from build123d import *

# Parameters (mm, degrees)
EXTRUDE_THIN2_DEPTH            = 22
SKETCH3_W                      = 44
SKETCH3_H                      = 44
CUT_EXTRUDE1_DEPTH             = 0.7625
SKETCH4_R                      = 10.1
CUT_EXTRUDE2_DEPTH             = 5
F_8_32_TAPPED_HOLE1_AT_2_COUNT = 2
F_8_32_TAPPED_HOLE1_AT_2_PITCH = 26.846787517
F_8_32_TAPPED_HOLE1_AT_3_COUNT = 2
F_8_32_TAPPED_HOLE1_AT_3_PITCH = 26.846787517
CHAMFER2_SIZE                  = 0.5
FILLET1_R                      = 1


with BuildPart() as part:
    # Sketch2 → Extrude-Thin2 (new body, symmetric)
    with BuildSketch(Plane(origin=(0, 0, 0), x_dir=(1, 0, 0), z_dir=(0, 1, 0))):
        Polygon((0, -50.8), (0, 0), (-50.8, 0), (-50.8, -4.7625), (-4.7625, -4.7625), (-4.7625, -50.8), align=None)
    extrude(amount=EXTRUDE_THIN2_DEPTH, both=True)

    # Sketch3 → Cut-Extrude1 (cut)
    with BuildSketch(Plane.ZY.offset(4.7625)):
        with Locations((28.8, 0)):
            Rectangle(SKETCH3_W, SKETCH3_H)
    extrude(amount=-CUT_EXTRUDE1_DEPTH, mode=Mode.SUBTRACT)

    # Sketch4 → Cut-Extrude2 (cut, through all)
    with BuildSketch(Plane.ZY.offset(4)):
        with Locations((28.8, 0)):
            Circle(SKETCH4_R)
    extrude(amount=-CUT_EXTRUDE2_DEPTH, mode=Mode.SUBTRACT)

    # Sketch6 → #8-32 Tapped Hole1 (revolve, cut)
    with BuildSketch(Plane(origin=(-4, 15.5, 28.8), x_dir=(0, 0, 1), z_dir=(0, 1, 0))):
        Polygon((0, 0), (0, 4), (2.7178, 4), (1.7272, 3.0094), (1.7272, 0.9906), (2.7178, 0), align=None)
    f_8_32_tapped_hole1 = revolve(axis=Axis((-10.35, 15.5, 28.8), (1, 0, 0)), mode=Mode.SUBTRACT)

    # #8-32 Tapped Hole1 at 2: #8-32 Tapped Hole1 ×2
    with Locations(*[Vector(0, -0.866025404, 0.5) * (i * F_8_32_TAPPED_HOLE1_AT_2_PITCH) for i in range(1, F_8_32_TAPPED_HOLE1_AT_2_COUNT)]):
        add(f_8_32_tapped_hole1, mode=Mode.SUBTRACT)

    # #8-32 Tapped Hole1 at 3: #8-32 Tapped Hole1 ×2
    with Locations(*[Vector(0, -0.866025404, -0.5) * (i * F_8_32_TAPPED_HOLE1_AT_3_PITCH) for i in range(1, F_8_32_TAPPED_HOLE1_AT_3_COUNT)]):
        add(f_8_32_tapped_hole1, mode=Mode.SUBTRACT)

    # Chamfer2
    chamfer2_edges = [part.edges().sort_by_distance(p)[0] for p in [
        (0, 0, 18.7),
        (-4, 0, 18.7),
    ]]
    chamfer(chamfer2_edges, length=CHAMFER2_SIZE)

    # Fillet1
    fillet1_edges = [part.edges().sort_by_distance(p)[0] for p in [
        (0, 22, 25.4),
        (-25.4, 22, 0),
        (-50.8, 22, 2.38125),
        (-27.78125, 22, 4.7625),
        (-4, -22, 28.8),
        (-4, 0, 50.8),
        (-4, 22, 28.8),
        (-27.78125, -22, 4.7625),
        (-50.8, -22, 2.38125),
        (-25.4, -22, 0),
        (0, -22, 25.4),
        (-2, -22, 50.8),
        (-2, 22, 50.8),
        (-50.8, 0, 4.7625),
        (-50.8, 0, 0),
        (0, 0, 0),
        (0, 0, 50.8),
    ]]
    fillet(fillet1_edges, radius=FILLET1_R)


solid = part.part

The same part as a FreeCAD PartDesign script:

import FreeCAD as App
import Part
import Sketcher
from FreeCAD import Vector


def edges_at(feature, points):
    """Names of the edges that pass closest to the given points."""
    edges = feature.Shape.Edges
    near = lambda p: min(range(len(edges)), key=lambda i: edges[i].distToShape(Part.Vertex(*p))[0])
    return sorted({f"Edge{near(p) + 1}" for p in points})


def add_polygon(sketch, points):
    """Adds a closed chain of lines whose ends are joined by coincident constraints."""
    first, n = sketch.GeometryCount, len(points)
    for a, b in zip(points, points[1:] + points[:1]):
        sketch.addGeometry(Part.LineSegment(App.Vector(*a, 0), App.Vector(*b, 0)), False)
    for i in range(n):
        sketch.addConstraint(Sketcher.Constraint("Coincident", first + i, 2, first + (i + 1) % n, 1))

doc = App.newDocument("Part")
body = doc.addObject("PartDesign::Body", "Body")

sketch1 = body.newObject("Sketcher::SketchObject", "Sketch")
sketch1.AttachmentSupport = (doc.getObject("XZ_Plane"), [""])
sketch1.MapMode = "FlatFace"
add_polygon(sketch1, [(0, 50.8), (0, 0), (-50.8, 0), (-50.8, 4.7625), (-4.7625, 4.7625), (-4.7625, 50.8)])
sketch1.addConstraint([
    Sketcher.Constraint("Vertical", 0),
    Sketcher.Constraint("Horizontal", 1),
    Sketcher.Constraint("Vertical", 2),
    Sketcher.Constraint("Horizontal", 3),
    Sketcher.Constraint("Vertical", 4),
    Sketcher.Constraint("Horizontal", 5),
    Sketcher.Constraint("Coincident", 0, 2, -1, 1),
    Sketcher.Constraint("Equal", 1, 0),
    Sketcher.Constraint("Equal", 5, 2),
    Sketcher.Constraint("DistanceX", 1, 2, 1, 1, 50.8),
    Sketcher.Constraint("DistanceX", 3, 1, 3, 2, 46.0375),
])
pad1 = body.newObject("PartDesign::Pad", "Pad")
pad1.Profile = sketch1
pad1.Length = 44
pad1.Midplane = True

sketch2 = body.newObject("Sketcher::SketchObject", "Sketch001")
sketch2.AttachmentSupport = (doc.getObject("YZ_Plane"), [""])
sketch2.MapMode = "FlatFace"
sketch2.AttachmentOffset = App.Placement(Vector(0, 0, -4.7625), App.Rotation())
add_polygon(sketch2, [(22, 6.8), (-22, 6.8), (-22, 50.8), (22, 50.8)])
sketch2.addConstraint([
    Sketcher.Constraint("Horizontal", 0),
    Sketcher.Constraint("Vertical", 1),
    Sketcher.Constraint("Horizontal", 2),
    Sketcher.Constraint("Vertical", 3),
    Sketcher.Constraint("Equal", 2, 1),
    Sketcher.Constraint("DistanceX", 0, 2, 0, 1, 44.0),
    Sketcher.Constraint("DistanceX", 0, 2, -1, 1, 22.0),
    Sketcher.Constraint("DistanceY", -1, 1, 0, 2, 6.8),
])
pocket1 = body.newObject("PartDesign::Pocket", "Pocket")
pocket1.Profile = sketch2
pocket1.Length = 0.7625
pocket1.Reversed = True

sketch3 = body.newObject("Sketcher::SketchObject", "Sketch002")
sketch3.AttachmentSupport = (doc.getObject("YZ_Plane"), [""])
sketch3.MapMode = "FlatFace"
sketch3.AttachmentOffset = App.Placement(Vector(0, 0, -4), App.Rotation())
sketch3.addGeometry(Part.Circle(Vector(0, 28.8, 0), Vector(0, 0, 1), 10.1), False)
sketch3.addConstraint([
    Sketcher.Constraint("PointOnObject", 0, 3, -2),
    Sketcher.Constraint("Diameter", 0, 20.2),
    Sketcher.Constraint("DistanceY", -1, 1, 0, 3, 28.8),
])
pocket2 = body.newObject("PartDesign::Pocket", "Pocket001")
pocket2.Profile = sketch3
pocket2.Type = "ThroughAll"
pocket2.Reversed = True

sketch4 = body.newObject("Sketcher::SketchObject", "Sketch003")
sketch4.AttachmentSupport = (doc.getObject("XZ_Plane"), [""])
sketch4.MapMode = "FlatFace"
sketch4.AttachmentOffset = App.Placement(Vector(0, 0, -15.5), App.Rotation())
add_polygon(sketch4, [(0, 28.8), (-4, 28.8), (-4, 31.5178), (-3.0094, 30.5272), (-0.9906, 30.5272), (0, 31.5178)])
sketch4.addGeometry(Part.LineSegment(Vector(-4, 28.8, 0), Vector(0, 28.8, 0)), True)
sketch4.addConstraint([
    Sketcher.Constraint("Horizontal", 0),
    Sketcher.Constraint("Vertical", 1),
    Sketcher.Constraint("Horizontal", 3),
    Sketcher.Constraint("Vertical", 5),
    Sketcher.Constraint("Horizontal", 6),
    Sketcher.Constraint("Coincident", 6, 1, 0, 2),
    Sketcher.Constraint("PointOnObject", 4, 2, -2),
    Sketcher.Constraint("PointOnObject", 6, 2, -2),
    Sketcher.Constraint("Perpendicular", 2, 4),
    Sketcher.Constraint("Horizontal", 1, 2, 4, 2),
    Sketcher.Constraint("Equal", 2, 4),
    Sketcher.Constraint("DistanceX", 0, 2, 0, 1, 4.0),
    Sketcher.Constraint("DistanceY", -1, 1, 0, 2, 28.8),
    Sketcher.Constraint("DistanceX", 3, 1, 3, 2, 2.0188),
    Sketcher.Constraint("DistanceY", 1, 1, 1, 2, 2.7178),
])
groove = body.newObject("PartDesign::Groove", "Groove")
groove.Profile = sketch4
groove.ReferenceAxis = (sketch4, ["Axis0"])
groove.Angle = 360
doc.recompute()

datumline = body.newObject("PartDesign::Line", "DatumLine")
datumline.Placement = App.Placement(Vector(0, 0, 0), App.Rotation(Vector(0, 0, 1), Vector(0, -0.866025404, 0.5)))
linearpattern = body.newObject("PartDesign::LinearPattern", "LinearPattern")
linearpattern.Originals = [groove]
linearpattern.Direction = (datumline, [""])
linearpattern.Mode = "offset"
linearpattern.Offset = 26.846788
linearpattern.Occurrences = 2
body.Tip = linearpattern
doc.recompute()

datumline2 = body.newObject("PartDesign::Line", "DatumLine001")
datumline2.Placement = App.Placement(Vector(0, 0, 0), App.Rotation(Vector(0, 0, 1), Vector(0, -0.866025404, -0.5)))
linearpattern2 = body.newObject("PartDesign::LinearPattern", "LinearPattern001")
linearpattern2.Originals = [groove]
linearpattern2.Direction = (datumline2, [""])
linearpattern2.Mode = "offset"
linearpattern2.Offset = 26.846788
linearpattern2.Occurrences = 2
body.Tip = linearpattern2
doc.recompute()

chamfer = body.newObject("PartDesign::Chamfer", "Chamfer")
chamfer.Base = (linearpattern2, edges_at(linearpattern2, [(0, 0, 18.7), (-4, 0, 18.7)]))
chamfer.Size = 0.5
doc.recompute()

fillet = body.newObject("PartDesign::Fillet", "Fillet")
fillet.Base = (chamfer, edges_at(chamfer, [
    (0, 22, 25.4),
    (-25.4, 22, 0),
    (-50.8, 22, 2.381),
    (-27.781, 22, 4.763),
    (-4, -22, 28.8),
    (-4, 0, 50.8),
    (-4, 22, 28.8),
    (-27.781, -22, 4.763),
    (-50.8, -22, 2.381),
    (-25.4, -22, 0),
    (0, -22, 25.4),
    (-2, -22, 50.8),
    (-2, 22, 50.8),
    (-50.8, 0, 4.763),
    (-50.8, 0, 0),
    (0, 0, 0),
    (0, 0, 50.8),
]))
fillet.Radius = 1

doc.recompute()
